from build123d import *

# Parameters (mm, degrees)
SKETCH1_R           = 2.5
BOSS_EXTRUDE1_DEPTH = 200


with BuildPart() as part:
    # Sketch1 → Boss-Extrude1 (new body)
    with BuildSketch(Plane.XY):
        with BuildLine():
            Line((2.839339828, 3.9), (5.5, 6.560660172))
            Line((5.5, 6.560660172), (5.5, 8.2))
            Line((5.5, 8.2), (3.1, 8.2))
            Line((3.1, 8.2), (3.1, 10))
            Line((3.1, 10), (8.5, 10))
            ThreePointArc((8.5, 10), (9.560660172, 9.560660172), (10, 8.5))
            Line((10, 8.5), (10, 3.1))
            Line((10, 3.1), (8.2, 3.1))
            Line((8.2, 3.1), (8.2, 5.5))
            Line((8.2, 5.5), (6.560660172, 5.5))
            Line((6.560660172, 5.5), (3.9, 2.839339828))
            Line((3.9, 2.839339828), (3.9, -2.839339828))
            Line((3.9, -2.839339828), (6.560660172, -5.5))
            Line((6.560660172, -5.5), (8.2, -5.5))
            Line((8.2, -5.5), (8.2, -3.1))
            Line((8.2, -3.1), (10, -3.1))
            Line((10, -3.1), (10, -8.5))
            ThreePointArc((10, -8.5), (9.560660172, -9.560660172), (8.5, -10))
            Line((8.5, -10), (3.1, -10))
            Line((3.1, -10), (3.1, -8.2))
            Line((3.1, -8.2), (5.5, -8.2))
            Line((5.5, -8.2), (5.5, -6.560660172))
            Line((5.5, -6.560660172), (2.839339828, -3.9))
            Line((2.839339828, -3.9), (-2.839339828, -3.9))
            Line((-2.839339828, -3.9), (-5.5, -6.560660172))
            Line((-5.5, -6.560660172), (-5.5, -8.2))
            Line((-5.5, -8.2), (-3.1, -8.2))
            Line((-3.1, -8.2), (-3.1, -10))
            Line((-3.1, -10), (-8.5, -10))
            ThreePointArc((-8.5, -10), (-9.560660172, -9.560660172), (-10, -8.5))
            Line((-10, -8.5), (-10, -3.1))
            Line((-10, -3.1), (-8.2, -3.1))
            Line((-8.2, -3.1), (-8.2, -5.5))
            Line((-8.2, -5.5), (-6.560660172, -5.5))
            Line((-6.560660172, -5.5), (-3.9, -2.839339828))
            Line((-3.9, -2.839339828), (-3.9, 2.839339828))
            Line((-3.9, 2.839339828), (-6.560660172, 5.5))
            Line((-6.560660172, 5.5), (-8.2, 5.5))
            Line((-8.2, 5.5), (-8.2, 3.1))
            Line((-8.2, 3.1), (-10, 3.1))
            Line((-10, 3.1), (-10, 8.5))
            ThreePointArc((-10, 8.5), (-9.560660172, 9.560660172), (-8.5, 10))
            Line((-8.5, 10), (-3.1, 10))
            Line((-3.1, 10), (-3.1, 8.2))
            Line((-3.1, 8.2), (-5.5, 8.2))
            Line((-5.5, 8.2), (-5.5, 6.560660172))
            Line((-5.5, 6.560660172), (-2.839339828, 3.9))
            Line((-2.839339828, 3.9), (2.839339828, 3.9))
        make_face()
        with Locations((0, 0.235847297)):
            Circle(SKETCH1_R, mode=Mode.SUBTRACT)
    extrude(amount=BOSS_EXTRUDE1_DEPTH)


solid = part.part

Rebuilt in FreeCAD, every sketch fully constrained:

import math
import FreeCAD as App
import Part
import Sketcher
Q = App.Units.Quantity

doc = App.newDocument("Part")
body = doc.addObject("PartDesign::Body", "Body")

# Sketch on XY plane
sketch1 = doc.addObject("Sketcher::SketchObject", "Sketch")
body.addObject(sketch1)
sketch1.AttachmentSupport = (doc.XY_Plane, [""])
sketch1.MapMode = "FlatFace"
sketch1.addGeometry([
    Part.LineSegment(App.Vector(5.5, 6.6, 0), App.Vector(2.8, 3.9, 0)),  # 0
    Part.LineSegment(App.Vector(2.8, 3.9, 0), App.Vector(-2.8, 3.9, 0)),  # 1
    Part.LineSegment(App.Vector(-2.8, 3.9, 0), App.Vector(-5.5, 6.6, 0)),  # 2
    Part.LineSegment(App.Vector(-5.5, 6.6, 0), App.Vector(-5.5, 8.2, 0)),  # 3
    Part.LineSegment(App.Vector(-5.5, 8.2, 0), App.Vector(-3.1, 8.2, 0)),  # 4
    Part.LineSegment(App.Vector(-3.1, 8.2, 0), App.Vector(-3.1, 10, 0)),  # 5
    Part.LineSegment(App.Vector(-3.1, 10, 0), App.Vector(-8.5, 10, 0)),  # 6
    Part.ArcOfCircle(Part.Circle(App.Vector(-8.5, 8.5, 0), App.Vector(0, 0, 1), 1.5), math.radians(90), math.radians(180)),  # 7
    Part.LineSegment(App.Vector(-10, 8.5, 0), App.Vector(-10, 3.1, 0)),  # 8
    Part.LineSegment(App.Vector(-10, 3.1, 0), App.Vector(-8.2, 3.1, 0)),  # 9
    Part.LineSegment(App.Vector(-8.2, 3.1, 0), App.Vector(-8.2, 5.5, 0)),  # 10
    Part.LineSegment(App.Vector(-8.2, 5.5, 0), App.Vector(-6.6, 5.5, 0)),  # 11
    Part.LineSegment(App.Vector(-6.6, 5.5, 0), App.Vector(-3.9, 2.8, 0)),  # 12
    Part.LineSegment(App.Vector(-3.9, 2.8, 0), App.Vector(-3.9, -2.8, 0)),  # 13
    Part.LineSegment(App.Vector(-3.9, -2.8, 0), App.Vector(-6.6, -5.5, 0)),  # 14
    Part.LineSegment(App.Vector(-6.6, -5.5, 0), App.Vector(-8.2, -5.5, 0)),  # 15
    Part.LineSegment(App.Vector(-8.2, -5.5, 0), App.Vector(-8.2, -3.1, 0)),  # 16
    Part.LineSegment(App.Vector(-8.2, -3.1, 0), App.Vector(-10, -3.1, 0)),  # 17
    Part.LineSegment(App.Vector(-10, -3.1, 0), App.Vector(-10, -8.5, 0)),  # 18
    Part.ArcOfCircle(Part.Circle(App.Vector(-8.5, -8.5, 0), App.Vector(0, 0, 1), 1.5), math.radians(180), math.radians(270)),  # 19
    Part.LineSegment(App.Vector(-8.5, -10, 0), App.Vector(-3.1, -10, 0)),  # 20
    Part.LineSegment(App.Vector(-3.1, -10, 0), App.Vector(-3.1, -8.2, 0)),  # 21
    Part.LineSegment(App.Vector(-3.1, -8.2, 0), App.Vector(-5.5, -8.2, 0)),  # 22
    Part.LineSegment(App.Vector(-5.5, -8.2, 0), App.Vector(-5.5, -6.6, 0)),  # 23
    Part.LineSegment(App.Vector(-5.5, -6.6, 0), App.Vector(-2.8, -3.9, 0)),  # 24
    Part.LineSegment(App.Vector(-2.8, -3.9, 0), App.Vector(2.8, -3.9, 0)),  # 25
    Part.LineSegment(App.Vector(2.8, -3.9, 0), App.Vector(5.5, -6.6, 0)),  # 26
    Part.LineSegment(App.Vector(5.5, -6.6, 0), App.Vector(5.5, -8.2, 0)),  # 27
    Part.LineSegment(App.Vector(5.5, -8.2, 0), App.Vector(3.1, -8.2, 0)),  # 28
    Part.LineSegment(App.Vector(3.1, -8.2, 0), App.Vector(3.1, -10, 0)),  # 29
    Part.LineSegment(App.Vector(3.1, -10, 0), App.Vector(8.5, -10, 0)),  # 30
    Part.ArcOfCircle(Part.Circle(App.Vector(8.5, -8.5, 0), App.Vector(0, 0, 1), 1.5), math.radians(-90), math.radians(0)),  # 31
    Part.LineSegment(App.Vector(10, -8.5, 0), App.Vector(10, -3.1, 0)),  # 32
    Part.LineSegment(App.Vector(10, -3.1, 0), App.Vector(8.2, -3.1, 0)),  # 33
    Part.LineSegment(App.Vector(8.2, -3.1, 0), App.Vector(8.2, -5.5, 0)),  # 34
    Part.LineSegment(App.Vector(8.2, -5.5, 0), App.Vector(6.6, -5.5, 0)),  # 35
    Part.LineSegment(App.Vector(6.6, -5.5, 0), App.Vector(3.9, -2.8, 0)),  # 36
    Part.LineSegment(App.Vector(3.9, -2.8, 0), App.Vector(3.9, 2.8, 0)),  # 37
    Part.LineSegment(App.Vector(3.9, 2.8, 0), App.Vector(6.6, 5.5, 0)),  # 38
    Part.LineSegment(App.Vector(6.6, 5.5, 0), App.Vector(8.2, 5.5, 0)),  # 39
    Part.LineSegment(App.Vector(8.2, 5.5, 0), App.Vector(8.2, 3.1, 0)),  # 40
    Part.LineSegment(App.Vector(8.2, 3.1, 0), App.Vector(10, 3.1, 0)),  # 41
    Part.LineSegment(App.Vector(10, 3.1, 0), App.Vector(10, 8.5, 0)),  # 42
    Part.ArcOfCircle(Part.Circle(App.Vector(8.5, 8.5, 0), App.Vector(0, 0, 1), 1.5), math.radians(0), math.radians(90)),  # 43
    Part.LineSegment(App.Vector(8.5, 10, 0), App.Vector(3.1, 10, 0)),  # 44
    Part.LineSegment(App.Vector(3.1, 10, 0), App.Vector(3.1, 8.2, 0)),  # 45
    Part.LineSegment(App.Vector(3.1, 8.2, 0), App.Vector(5.5, 8.2, 0)),  # 46
    Part.LineSegment(App.Vector(5.5, 8.2, 0), App.Vector(5.5, 6.6, 0)),  # 47
    Part.Circle(App.Vector(0, 0.2, 0), App.Vector(0, 0, 1), 2.5),  # 48
], False)
sketch1.addConstraint([
    Sketcher.Constraint("Coincident", 0, 2, 1, 1),
    Sketcher.Constraint("Coincident", 1, 2, 2, 1),
    Sketcher.Constraint("Coincident", 2, 2, 3, 1),
    Sketcher.Constraint("Coincident", 3, 2, 4, 1),
    Sketcher.Constraint("Coincident", 4, 2, 5, 1),
    Sketcher.Constraint("Coincident", 5, 2, 6, 1),
    Sketcher.Constraint("Tangent", 6, 2, 7, 1),
    Sketcher.Constraint("Tangent", 7, 2, 8, 1),
    Sketcher.Constraint("Coincident", 8, 2, 9, 1),
    Sketcher.Constraint("Coincident", 9, 2, 10, 1),
    Sketcher.Constraint("Coincident", 10, 2, 11, 1),
    Sketcher.Constraint("Coincident", 11, 2, 12, 1),
    Sketcher.Constraint("Coincident", 12, 2, 13, 1),
    Sketcher.Constraint("Coincident", 13, 2, 14, 1),
    Sketcher.Constraint("Coincident", 14, 2, 15, 1),
    Sketcher.Constraint("Coincident", 15, 2, 16, 1),
    Sketcher.Constraint("Coincident", 16, 2, 17, 1),
    Sketcher.Constraint("Coincident", 17, 2, 18, 1),
    Sketcher.Constraint("Tangent", 18, 2, 19, 1),
    Sketcher.Constraint("Tangent", 19, 2, 20, 1),
    Sketcher.Constraint("Coincident", 20, 2, 21, 1),
    Sketcher.Constraint("Coincident", 21, 2, 22, 1),
    Sketcher.Constraint("Coincident", 22, 2, 23, 1),
    Sketcher.Constraint("Coincident", 23, 2, 24, 1),
    Sketcher.Constraint("Coincident", 24, 2, 25, 1),
    Sketcher.Constraint("Coincident", 25, 2, 26, 1),
    Sketcher.Constraint("Coincident", 26, 2, 27, 1),
    Sketcher.Constraint("Coincident", 27, 2, 28, 1),
    Sketcher.Constraint("Coincident", 28, 2, 29, 1),
    Sketcher.Constraint("Coincident", 29, 2, 30, 1),
    Sketcher.Constraint("Tangent", 30, 2, 31, 1),
    Sketcher.Constraint("Tangent", 31, 2, 32, 1),
    Sketcher.Constraint("Coincident", 32, 2, 33, 1),
    Sketcher.Constraint("Coincident", 33, 2, 34, 1),
    Sketcher.Constraint("Coincident", 34, 2, 35, 1),
    Sketcher.Constraint("Coincident", 35, 2, 36, 1),
    Sketcher.Constraint("Coincident", 36, 2, 37, 1),
    Sketcher.Constraint("Coincident", 37, 2, 38, 1),
    Sketcher.Constraint("Coincident", 38, 2, 39, 1),
    Sketcher.Constraint("Coincident", 39, 2, 40, 1),
    Sketcher.Constraint("Coincident", 40, 2, 41, 1),
    Sketcher.Constraint("Coincident", 41, 2, 42, 1),
    Sketcher.Constraint("Tangent", 42, 2, 43, 1),
    Sketcher.Constraint("Tangent", 43, 2, 44, 1),
    Sketcher.Constraint("Coincident", 44, 2, 45, 1),
    Sketcher.Constraint("Coincident", 45, 2, 46, 1),
    Sketcher.Constraint("Coincident", 46, 2, 47, 1),
    Sketcher.Constraint("Coincident", 47, 2, 0, 1),
    Sketcher.Constraint("Horizontal", 1),
    Sketcher.Constraint("Vertical", 3),
    Sketcher.Constraint("Horizontal", 4),
    Sketcher.Constraint("Vertical", 5),
    Sketcher.Constraint("Horizontal", 6),
    Sketcher.Constraint("Vertical", 8),
    Sketcher.Constraint("Horizontal", 9),
    Sketcher.Constraint("Vertical", 10),
    Sketcher.Constraint("Horizontal", 11),
    Sketcher.Constraint("Vertical", 13),
    Sketcher.Constraint("Horizontal", 15),
    Sketcher.Constraint("Vertical", 16),
    Sketcher.Constraint("Horizontal", 17),
    Sketcher.Constraint("Vertical", 18),
    Sketcher.Constraint("Horizontal", 20),
    Sketcher.Constraint("Vertical", 21),
    Sketcher.Constraint("Horizontal", 22),
    Sketcher.Constraint("Vertical", 23),
    Sketcher.Constraint("Horizontal", 25),
    Sketcher.Constraint("Vertical", 27),
    Sketcher.Constraint("Horizontal", 28),
    Sketcher.Constraint("Vertical", 29),
    Sketcher.Constraint("Horizontal", 30),
    Sketcher.Constraint("Vertical", 32),
    Sketcher.Constraint("Horizontal", 33),
    Sketcher.Constraint("Vertical", 34),
    Sketcher.Constraint("Horizontal", 35),
    Sketcher.Constraint("Vertical", 37),
    Sketcher.Constraint("Horizontal", 39),
    Sketcher.Constraint("Vertical", 40),
    Sketcher.Constraint("Horizontal", 41),
    Sketcher.Constraint("Vertical", 42),
    Sketcher.Constraint("Horizontal", 44),
    Sketcher.Constraint("Vertical", 45),
    Sketcher.Constraint("Horizontal", 46),
    Sketcher.Constraint("Vertical", 47),
    Sketcher.Constraint("Equal", 7, 19),
    Sketcher.Constraint("Equal", 19, 31),
    Sketcher.Constraint("Equal", 31, 43),
    Sketcher.Constraint("Symmetric", 7, 3, 31, 3, -1, 1),
    Sketcher.Constraint("Symmetric", 19, 3, 43, 3, -1, 1),
    Sketcher.Constraint("Symmetric", 0, 2, 24, 2, -1, 1),
    Sketcher.Constraint("Symmetric", 2, 2, 26, 2, -1, 1),
    Sketcher.Constraint("Symmetric", 4, 2, 28, 2, -1, 1),
    Sketcher.Constraint("Symmetric", 9, 2, 33, 2, -1, 1),
    Sketcher.Constraint("Symmetric", 11, 2, 35, 2, -1, 1),
    Sketcher.Constraint("Symmetric", 12, 2, 36, 2, -1, 1),
    Sketcher.Constraint("Symmetric", 14, 2, 38, 2, -1, 1),
    Sketcher.Constraint("Symmetric", 16, 2, 40, 2, -1, 1),
    Sketcher.Constraint("Symmetric", 21, 2, 45, 2, -1, 1),
    Sketcher.Constraint("Symmetric", 23, 2, 47, 2, -1, 1),
    Sketcher.Constraint("Symmetric", 19, 3, 31, 3, -2),
    Sketcher.Constraint("Symmetric", 23, 2, 26, 2, -2),
    Sketcher.Constraint("Symmetric", 21, 2, 28, 2, -2),
    Sketcher.Constraint("Symmetric", 16, 2, 33, 2, -2),
    Sketcher.Constraint("Symmetric", 14, 2, 35, 2, -2),
    Sketcher.Constraint("PointOnObject", 48, 3, -2),
    Sketcher.Constraint("Perpendicular", 0, 2),
    Sketcher.Constraint("Parallel", 2, 12),
    Sketcher.Constraint("Perpendicular", 12, 14),
    Sketcher.Constraint("Perpendicular", 24, 26),
    Sketcher.Constraint("Perpendicular", 36, 38),
    Sketcher.Constraint("Horizontal", 13, 2, 36, 2),
    Sketcher.Constraint("Equal", 39, 3),
    Sketcher.Constraint("Equal", 41, 5),
    Sketcher.Constraint("Equal", 44, 8),
    Sketcher.Constraint("Equal", 46, 10),
    Sketcher.Constraint("Equal", 25, 13),
    Sketcher.Constraint("Equal", 2, 12),
    Sketcher.Constraint("Diameter", 48, Q("5 mm")),
    Sketcher.Constraint("Radius", 7, Q("1.5 mm")),
    Sketcher.Constraint("DistanceX", 4, 1, 4, 2, Q("2.4 mm")),
    Sketcher.Constraint("DistanceX", 6, 2, 6, 1, Q("5.4 mm")),
    Sketcher.Constraint("DistanceX", 9, 1, 9, 2, Q("1.8 mm")),
    Sketcher.Constraint("DistanceY", -1, 1, 5, 2, Q("10 mm")),
    Sketcher.Constraint("DistanceY", -1, 1, 0, 2, Q("3.9 mm")),
    Sketcher.Constraint("DistanceX", 1, 2, 1, 1, Q("5.67868 mm")),
    Sketcher.Constraint("DistanceY", -1, 1, 48, 3, Q("0.235847 mm")),
])
pad1 = doc.addObject("PartDesign::Pad", "Pad")
body.addObject(pad1)
pad1.Profile = sketch1
pad1.Length = 200

doc.recompute()
